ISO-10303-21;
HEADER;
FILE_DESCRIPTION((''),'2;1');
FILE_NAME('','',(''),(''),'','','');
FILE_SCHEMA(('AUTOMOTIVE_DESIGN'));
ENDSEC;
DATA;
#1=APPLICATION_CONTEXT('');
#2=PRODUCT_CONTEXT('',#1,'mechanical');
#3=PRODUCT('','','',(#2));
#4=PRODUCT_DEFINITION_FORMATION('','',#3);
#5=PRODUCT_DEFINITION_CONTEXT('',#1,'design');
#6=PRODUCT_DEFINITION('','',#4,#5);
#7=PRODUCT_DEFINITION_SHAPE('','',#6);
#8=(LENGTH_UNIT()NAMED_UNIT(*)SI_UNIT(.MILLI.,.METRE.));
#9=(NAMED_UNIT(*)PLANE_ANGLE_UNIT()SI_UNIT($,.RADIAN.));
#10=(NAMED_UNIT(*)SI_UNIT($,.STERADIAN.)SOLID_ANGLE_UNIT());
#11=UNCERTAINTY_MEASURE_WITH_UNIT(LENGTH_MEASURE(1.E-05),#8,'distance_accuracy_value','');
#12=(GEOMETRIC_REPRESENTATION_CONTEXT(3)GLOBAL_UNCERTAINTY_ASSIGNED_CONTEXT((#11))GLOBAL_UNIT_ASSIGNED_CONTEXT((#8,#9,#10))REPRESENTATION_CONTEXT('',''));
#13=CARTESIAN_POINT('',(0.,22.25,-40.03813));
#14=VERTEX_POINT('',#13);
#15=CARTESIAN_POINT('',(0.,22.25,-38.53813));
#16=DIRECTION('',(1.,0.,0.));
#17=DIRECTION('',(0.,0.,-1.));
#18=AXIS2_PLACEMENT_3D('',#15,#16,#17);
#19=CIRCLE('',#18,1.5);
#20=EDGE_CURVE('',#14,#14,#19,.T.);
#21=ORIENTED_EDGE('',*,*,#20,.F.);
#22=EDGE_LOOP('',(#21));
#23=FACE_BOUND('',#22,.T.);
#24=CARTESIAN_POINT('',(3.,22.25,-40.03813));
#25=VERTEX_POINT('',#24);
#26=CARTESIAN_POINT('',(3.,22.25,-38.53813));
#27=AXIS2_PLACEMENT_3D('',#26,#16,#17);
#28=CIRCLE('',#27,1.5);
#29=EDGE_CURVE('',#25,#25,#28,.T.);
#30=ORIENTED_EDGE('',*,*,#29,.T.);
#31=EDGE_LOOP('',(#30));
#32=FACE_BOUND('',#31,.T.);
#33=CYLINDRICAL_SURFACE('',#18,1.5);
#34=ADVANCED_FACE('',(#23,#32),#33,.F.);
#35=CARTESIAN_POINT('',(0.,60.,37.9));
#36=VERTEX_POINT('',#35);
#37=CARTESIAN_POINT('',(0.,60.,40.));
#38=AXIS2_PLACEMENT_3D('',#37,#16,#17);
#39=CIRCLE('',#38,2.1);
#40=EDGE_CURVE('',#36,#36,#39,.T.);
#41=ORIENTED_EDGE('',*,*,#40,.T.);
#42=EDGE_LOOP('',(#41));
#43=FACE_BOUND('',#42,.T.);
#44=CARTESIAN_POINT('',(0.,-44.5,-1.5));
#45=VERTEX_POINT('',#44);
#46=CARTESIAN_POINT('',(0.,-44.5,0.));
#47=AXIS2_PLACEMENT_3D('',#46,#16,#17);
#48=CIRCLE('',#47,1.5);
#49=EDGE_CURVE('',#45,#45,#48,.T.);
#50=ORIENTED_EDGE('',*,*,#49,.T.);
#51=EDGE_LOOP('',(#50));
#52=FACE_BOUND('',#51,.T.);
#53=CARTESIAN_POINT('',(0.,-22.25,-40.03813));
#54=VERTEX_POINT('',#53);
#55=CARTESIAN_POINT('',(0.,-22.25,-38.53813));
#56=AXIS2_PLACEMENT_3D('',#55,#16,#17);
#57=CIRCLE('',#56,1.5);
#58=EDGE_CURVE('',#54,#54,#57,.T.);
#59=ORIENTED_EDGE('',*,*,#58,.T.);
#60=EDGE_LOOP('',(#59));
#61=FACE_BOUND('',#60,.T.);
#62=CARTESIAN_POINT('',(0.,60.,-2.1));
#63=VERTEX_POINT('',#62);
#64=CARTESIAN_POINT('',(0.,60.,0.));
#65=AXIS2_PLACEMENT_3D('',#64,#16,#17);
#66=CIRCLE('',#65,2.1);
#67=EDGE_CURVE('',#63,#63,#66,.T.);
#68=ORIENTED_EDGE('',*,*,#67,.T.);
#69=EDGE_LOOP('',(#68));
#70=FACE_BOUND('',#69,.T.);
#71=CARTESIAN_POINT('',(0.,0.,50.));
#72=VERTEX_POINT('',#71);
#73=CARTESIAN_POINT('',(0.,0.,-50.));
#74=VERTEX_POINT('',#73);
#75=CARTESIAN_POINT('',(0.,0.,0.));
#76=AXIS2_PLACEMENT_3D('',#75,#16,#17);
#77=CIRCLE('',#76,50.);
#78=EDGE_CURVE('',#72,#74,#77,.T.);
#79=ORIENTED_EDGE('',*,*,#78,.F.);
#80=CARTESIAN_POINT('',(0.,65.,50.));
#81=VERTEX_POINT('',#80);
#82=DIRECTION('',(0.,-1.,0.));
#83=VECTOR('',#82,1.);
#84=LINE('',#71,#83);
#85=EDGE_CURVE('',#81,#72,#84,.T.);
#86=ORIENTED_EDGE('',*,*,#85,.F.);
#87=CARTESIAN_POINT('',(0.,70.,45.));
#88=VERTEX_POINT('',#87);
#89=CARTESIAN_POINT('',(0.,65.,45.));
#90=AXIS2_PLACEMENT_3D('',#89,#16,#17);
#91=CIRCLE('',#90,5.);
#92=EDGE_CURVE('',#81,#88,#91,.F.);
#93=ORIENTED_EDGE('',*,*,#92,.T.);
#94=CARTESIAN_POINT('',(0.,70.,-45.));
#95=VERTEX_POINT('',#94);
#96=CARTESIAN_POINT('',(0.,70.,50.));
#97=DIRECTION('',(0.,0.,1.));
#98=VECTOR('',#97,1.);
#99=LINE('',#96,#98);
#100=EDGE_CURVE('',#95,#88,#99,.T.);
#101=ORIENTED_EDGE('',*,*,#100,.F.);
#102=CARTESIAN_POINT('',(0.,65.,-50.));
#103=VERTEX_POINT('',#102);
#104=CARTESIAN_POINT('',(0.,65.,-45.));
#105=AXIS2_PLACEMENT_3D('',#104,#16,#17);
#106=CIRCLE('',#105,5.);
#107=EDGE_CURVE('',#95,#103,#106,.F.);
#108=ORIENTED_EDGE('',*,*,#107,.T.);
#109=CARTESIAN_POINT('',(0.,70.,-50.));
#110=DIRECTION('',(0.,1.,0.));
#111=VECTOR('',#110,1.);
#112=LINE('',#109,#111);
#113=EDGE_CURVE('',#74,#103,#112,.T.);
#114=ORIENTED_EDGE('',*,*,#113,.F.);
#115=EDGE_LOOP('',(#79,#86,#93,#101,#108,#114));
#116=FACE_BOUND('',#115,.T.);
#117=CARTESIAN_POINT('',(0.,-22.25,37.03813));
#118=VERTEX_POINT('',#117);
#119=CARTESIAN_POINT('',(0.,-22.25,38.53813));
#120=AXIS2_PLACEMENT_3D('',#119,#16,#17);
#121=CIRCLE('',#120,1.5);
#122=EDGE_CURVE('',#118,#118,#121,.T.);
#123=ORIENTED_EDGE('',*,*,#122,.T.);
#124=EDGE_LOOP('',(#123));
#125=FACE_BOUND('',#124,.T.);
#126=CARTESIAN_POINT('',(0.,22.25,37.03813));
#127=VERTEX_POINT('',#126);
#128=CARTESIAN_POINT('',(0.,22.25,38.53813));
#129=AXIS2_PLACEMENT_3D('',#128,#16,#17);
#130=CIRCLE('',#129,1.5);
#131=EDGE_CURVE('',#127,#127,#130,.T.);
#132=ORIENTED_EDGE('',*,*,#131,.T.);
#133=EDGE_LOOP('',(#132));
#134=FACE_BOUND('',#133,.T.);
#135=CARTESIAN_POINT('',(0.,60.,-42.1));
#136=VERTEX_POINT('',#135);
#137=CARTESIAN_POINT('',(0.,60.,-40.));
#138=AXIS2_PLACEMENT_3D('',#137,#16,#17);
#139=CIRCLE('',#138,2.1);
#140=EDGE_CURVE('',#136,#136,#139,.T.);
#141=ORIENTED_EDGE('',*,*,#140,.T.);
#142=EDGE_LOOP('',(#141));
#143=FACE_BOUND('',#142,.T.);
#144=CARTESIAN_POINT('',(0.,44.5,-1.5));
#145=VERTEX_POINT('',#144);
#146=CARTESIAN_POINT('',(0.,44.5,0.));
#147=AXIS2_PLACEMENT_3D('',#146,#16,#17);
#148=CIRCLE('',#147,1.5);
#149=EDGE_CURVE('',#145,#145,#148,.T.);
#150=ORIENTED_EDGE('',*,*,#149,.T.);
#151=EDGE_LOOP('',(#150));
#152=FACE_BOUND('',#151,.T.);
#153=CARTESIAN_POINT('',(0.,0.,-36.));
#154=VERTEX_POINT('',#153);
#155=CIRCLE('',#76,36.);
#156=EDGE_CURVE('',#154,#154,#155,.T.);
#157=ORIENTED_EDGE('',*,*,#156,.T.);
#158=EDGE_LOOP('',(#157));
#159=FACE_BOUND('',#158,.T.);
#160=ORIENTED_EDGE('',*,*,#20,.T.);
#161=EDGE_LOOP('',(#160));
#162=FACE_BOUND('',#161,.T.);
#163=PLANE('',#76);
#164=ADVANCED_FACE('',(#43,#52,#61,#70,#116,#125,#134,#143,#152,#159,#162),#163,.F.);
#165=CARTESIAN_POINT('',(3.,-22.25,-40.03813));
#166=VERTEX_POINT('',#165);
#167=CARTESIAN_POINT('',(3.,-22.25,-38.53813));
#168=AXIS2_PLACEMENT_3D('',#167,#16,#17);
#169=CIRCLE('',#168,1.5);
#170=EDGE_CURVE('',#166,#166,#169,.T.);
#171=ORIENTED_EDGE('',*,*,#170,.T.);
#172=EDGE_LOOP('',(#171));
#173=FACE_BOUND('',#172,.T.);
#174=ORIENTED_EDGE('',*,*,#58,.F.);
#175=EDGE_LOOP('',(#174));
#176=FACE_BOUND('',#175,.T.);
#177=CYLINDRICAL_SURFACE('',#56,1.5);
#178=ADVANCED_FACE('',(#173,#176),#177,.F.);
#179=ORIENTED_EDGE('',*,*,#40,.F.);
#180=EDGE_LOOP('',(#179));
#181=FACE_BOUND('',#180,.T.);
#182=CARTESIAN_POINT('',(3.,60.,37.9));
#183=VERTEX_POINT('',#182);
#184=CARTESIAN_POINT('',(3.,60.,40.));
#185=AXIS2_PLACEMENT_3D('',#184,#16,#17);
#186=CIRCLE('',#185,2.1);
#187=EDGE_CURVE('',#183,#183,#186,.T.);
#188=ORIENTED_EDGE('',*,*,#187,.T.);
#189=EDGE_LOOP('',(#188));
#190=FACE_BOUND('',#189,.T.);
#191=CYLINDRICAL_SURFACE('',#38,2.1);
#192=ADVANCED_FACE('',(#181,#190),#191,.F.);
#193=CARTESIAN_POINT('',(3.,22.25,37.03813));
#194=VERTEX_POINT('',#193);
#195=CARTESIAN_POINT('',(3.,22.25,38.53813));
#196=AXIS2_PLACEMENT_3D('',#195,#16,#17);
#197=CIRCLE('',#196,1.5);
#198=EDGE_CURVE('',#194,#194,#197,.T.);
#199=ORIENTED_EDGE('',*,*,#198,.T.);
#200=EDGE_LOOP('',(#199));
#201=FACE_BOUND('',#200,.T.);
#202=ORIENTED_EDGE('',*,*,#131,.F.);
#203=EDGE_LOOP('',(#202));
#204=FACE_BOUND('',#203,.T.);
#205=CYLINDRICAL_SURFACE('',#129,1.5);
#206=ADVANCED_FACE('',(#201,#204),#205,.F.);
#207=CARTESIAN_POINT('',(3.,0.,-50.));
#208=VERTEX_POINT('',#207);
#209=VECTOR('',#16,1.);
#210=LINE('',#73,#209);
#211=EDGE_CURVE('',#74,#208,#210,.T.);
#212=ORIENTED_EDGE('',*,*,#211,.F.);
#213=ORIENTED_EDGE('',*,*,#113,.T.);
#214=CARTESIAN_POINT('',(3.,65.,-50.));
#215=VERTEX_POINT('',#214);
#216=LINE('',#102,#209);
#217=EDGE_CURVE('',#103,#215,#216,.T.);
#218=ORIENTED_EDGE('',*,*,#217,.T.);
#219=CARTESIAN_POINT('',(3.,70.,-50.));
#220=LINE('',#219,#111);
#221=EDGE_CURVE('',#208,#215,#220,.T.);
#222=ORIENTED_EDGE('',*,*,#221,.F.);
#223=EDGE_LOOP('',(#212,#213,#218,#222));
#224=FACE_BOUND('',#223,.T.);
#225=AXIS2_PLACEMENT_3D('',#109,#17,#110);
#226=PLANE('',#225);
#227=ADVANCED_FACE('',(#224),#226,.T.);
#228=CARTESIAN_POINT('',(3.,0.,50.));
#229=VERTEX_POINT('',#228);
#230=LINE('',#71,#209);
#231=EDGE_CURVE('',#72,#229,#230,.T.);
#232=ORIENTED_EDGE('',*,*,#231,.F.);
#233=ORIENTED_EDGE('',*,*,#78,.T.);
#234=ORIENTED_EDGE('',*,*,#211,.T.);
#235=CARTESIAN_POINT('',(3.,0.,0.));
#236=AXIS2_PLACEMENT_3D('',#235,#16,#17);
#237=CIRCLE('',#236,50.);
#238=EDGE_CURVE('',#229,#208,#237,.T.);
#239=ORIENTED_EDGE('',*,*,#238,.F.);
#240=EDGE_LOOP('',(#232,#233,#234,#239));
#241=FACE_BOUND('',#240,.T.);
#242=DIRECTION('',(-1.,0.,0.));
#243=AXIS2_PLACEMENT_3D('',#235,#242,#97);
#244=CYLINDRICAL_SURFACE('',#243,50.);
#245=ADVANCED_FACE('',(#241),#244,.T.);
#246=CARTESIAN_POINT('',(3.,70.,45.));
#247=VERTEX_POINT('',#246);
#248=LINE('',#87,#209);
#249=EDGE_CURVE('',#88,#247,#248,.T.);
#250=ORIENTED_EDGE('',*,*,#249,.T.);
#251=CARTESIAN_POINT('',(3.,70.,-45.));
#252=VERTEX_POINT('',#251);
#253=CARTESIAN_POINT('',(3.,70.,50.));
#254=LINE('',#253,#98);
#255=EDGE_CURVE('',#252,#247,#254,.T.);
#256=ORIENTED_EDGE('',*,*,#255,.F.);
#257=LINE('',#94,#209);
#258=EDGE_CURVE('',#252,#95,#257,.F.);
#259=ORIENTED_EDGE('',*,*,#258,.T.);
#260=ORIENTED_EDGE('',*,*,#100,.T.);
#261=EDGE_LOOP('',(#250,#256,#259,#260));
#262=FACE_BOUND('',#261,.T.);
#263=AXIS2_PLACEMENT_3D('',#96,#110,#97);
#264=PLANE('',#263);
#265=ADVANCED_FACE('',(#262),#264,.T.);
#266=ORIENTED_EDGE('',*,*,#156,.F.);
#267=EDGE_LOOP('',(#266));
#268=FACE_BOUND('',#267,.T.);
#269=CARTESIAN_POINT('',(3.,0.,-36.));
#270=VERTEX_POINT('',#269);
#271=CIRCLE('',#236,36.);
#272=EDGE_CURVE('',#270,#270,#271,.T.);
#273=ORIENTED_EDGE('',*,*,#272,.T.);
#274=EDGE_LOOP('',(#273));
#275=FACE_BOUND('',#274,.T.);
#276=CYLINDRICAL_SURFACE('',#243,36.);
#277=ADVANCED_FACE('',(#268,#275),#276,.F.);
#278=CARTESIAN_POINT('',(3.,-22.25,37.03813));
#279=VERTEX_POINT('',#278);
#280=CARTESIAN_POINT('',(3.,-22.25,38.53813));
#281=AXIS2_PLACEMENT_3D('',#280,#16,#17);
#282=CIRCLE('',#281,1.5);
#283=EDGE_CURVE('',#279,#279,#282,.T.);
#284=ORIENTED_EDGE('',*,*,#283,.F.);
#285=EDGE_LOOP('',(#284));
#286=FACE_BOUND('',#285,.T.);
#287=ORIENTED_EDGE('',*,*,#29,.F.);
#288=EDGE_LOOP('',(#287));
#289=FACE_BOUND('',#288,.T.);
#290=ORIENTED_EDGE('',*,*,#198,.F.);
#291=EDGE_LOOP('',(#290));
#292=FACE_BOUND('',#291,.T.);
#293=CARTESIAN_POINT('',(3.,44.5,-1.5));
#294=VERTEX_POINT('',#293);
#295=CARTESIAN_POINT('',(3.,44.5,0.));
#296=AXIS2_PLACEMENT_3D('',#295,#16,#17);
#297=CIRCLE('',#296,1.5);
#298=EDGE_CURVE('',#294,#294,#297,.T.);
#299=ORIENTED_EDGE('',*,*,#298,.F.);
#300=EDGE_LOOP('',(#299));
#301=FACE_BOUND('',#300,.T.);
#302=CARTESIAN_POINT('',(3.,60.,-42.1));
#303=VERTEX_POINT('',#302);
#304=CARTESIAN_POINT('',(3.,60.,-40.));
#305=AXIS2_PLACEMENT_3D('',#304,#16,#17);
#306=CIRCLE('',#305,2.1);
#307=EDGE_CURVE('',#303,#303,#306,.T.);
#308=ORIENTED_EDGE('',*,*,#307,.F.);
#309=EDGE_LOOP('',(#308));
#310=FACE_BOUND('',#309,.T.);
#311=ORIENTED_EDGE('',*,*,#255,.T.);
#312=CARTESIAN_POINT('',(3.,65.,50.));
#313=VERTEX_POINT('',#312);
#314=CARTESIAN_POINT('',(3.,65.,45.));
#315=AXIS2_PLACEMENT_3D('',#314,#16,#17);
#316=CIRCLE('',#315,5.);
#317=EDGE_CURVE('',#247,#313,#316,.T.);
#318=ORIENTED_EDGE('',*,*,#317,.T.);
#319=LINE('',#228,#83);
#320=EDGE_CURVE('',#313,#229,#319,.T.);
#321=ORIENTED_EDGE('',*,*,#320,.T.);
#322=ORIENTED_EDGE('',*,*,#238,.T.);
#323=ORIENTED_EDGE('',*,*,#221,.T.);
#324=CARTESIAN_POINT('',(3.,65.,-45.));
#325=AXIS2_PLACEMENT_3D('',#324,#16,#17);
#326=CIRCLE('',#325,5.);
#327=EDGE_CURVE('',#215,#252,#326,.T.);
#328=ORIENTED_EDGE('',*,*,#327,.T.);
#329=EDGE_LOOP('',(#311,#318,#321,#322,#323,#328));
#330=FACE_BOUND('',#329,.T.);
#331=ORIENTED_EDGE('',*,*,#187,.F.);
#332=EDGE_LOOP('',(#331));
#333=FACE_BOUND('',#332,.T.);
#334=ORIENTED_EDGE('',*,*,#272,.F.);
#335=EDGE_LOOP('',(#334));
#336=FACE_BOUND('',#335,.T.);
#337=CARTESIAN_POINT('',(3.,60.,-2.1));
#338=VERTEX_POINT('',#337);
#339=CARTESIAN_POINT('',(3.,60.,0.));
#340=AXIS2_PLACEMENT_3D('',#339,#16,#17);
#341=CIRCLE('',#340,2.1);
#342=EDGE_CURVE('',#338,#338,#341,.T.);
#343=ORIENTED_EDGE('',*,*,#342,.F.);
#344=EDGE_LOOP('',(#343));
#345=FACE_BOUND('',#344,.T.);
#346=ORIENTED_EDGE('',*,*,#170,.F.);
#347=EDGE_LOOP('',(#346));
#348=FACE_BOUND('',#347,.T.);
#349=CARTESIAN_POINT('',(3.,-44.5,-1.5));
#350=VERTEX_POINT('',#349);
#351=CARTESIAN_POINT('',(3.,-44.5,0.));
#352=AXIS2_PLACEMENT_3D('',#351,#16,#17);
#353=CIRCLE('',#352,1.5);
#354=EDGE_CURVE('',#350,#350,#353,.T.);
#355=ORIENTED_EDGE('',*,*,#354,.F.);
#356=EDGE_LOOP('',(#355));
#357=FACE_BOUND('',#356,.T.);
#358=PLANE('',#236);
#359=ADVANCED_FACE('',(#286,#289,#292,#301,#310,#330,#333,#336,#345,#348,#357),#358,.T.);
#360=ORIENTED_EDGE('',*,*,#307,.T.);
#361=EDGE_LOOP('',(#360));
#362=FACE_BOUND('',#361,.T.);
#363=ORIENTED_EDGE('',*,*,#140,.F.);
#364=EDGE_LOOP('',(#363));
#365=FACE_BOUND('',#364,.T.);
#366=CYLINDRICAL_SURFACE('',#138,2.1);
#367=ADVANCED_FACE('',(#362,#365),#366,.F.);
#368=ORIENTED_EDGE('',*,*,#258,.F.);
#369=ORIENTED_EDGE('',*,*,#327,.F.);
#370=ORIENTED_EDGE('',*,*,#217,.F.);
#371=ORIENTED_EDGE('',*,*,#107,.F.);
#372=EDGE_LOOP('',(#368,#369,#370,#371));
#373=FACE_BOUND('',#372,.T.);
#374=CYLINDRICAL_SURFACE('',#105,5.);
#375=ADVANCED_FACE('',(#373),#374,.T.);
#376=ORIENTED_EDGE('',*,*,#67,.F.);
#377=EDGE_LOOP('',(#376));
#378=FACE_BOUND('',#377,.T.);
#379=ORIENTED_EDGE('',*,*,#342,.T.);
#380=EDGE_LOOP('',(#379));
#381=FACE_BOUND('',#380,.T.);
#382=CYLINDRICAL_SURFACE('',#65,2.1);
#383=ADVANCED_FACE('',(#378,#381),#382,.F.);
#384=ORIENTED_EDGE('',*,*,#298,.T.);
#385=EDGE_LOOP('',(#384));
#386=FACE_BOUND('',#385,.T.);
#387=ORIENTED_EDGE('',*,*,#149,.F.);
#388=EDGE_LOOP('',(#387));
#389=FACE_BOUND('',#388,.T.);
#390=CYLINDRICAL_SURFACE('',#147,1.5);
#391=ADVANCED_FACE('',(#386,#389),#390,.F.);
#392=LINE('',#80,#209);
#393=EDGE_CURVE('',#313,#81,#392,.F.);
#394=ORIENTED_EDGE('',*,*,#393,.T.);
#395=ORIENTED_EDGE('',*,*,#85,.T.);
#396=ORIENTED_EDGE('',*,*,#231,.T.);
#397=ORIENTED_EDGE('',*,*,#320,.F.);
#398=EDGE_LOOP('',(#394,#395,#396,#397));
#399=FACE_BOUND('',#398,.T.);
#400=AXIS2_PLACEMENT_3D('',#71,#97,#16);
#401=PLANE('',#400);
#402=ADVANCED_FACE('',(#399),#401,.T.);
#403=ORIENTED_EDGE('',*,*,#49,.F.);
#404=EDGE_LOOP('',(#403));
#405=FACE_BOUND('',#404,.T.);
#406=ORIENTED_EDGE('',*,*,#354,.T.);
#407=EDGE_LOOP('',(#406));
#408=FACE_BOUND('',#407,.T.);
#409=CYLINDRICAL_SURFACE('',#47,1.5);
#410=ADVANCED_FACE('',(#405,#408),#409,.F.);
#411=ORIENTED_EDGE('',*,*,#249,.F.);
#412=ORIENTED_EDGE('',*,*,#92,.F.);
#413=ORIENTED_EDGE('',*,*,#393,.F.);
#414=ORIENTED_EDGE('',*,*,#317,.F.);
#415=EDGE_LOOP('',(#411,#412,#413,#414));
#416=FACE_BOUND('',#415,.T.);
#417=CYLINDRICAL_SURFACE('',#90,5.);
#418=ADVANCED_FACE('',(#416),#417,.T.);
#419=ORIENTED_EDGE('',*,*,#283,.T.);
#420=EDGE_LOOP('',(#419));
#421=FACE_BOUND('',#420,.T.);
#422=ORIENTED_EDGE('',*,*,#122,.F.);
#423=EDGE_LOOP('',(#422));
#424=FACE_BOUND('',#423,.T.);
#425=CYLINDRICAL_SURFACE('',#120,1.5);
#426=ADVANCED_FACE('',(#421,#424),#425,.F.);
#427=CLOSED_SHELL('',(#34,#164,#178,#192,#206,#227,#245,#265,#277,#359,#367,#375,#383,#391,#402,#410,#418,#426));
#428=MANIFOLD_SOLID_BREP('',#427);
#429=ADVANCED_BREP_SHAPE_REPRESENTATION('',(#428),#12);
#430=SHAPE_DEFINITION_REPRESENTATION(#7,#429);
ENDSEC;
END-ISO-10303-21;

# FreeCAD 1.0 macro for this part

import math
import FreeCAD as App
import Part
import Sketcher

V = App.Vector
Q = App.Units.Quantity


def edges_at(feature, points):
    """Names of the edges that pass closest to the given points."""
    edges = feature.Shape.Edges
    near = lambda p: min(range(len(edges)), key=lambda i: edges[i].distToShape(Part.Vertex(*p))[0])
    return sorted({f"Edge{near(p) + 1}" for p in points})

doc = App.newDocument("Part")
body = doc.addObject("PartDesign::Body", "Body")

sketch1 = body.newObject("Sketcher::SketchObject", "Sketch")
sketch1.AttachmentSupport = (doc.getObject("YZ_Plane"), [""])
sketch1.MapMode = "FlatFace"
sketch1.addGeometry(Part.Circle(V(0, 0, 0), V(0, 0, 1), 50), False)
sketch1.addGeometry(Part.Circle(V(0, 0, 0), V(0, 0, 1), 36), False)
sketch1.addConstraint(Sketcher.Constraint("Coincident", 0, 3, -1, 1))
sketch1.addConstraint(Sketcher.Constraint("Coincident", 1, 3, -1, 1))
sketch1.addConstraint(Sketcher.Constraint("Diameter", 0, Q("100 mm")))
sketch1.addConstraint(Sketcher.Constraint("Diameter", 1, Q("72 mm")))
pad1 = body.newObject("PartDesign::Pad", "Pad")
pad1.Profile = sketch1
pad1.Length = 3

sketch2 = body.newObject("Sketcher::SketchObject", "Sketch001")
sketch2.AttachmentSupport = (doc.getObject("YZ_Plane"), [""])
sketch2.MapMode = "FlatFace"
sketch2.addGeometry(Part.LineSegment(V(70, 50, 0), V(0, 50, 0)), False)
sketch2.addGeometry(Part.ArcOfCircle(Part.Circle(V(0, 0, 0), V(0, 0, 1), 50), math.radians(-90), math.radians(90)), False)
sketch2.addGeometry(Part.LineSegment(V(0, -50, 0), V(70, -50, 0)), False)
sketch2.addGeometry(Part.LineSegment(V(70, -50, 0), V(70, 50, 0)), False)
sketch2.addConstraint(Sketcher.Constraint("Tangent", 0, 2, 1, 2))
sketch2.addConstraint(Sketcher.Constraint("Tangent", 1, 1, 2, 1))
sketch2.addConstraint(Sketcher.Constraint("Coincident", 2, 2, 3, 1))
sketch2.addConstraint(Sketcher.Constraint("Coincident", 3, 2, 0, 1))
sketch2.addConstraint(Sketcher.Constraint("Horizontal", 0))
sketch2.addConstraint(Sketcher.Constraint("Horizontal", 2))
sketch2.addConstraint(Sketcher.Constraint("Vertical", 3))
sketch2.addConstraint(Sketcher.Constraint("Coincident", 1, 3, -1, 1))
sketch2.addConstraint(Sketcher.Constraint("Radius", 1, Q("50 mm")))
sketch2.addConstraint(Sketcher.Constraint("DistanceX", 0, 2, 0, 1, Q("70 mm")))
pad2 = body.newObject("PartDesign::Pad", "Pad001")
pad2.Profile = sketch2
pad2.Length = 3

sketch3 = body.newObject("Sketcher::SketchObject", "Sketch002")
sketch3.AttachmentSupport = (doc.getObject("YZ_Plane"), [""])
sketch3.MapMode = "FlatFace"
sketch3.AttachmentOffset = App.Placement(V(0, 0, 3), App.Rotation())
sketch3.addGeometry(Part.Circle(V(44.5, 0, 0), V(0, 0, 1), 1.5), False)
sketch3.addGeometry(Part.Circle(V(22.2, -38.5, 0), V(0, 0, 1), 1.5), False)
sketch3.addGeometry(Part.Circle(V(-22.2, -38.5, 0), V(0, 0, 1), 1.5), False)
sketch3.addGeometry(Part.Circle(V(-44.5, 0, 0), V(0, 0, 1), 1.5), False)
sketch3.addGeometry(Part.Circle(V(-22.2, 38.5, 0), V(0, 0, 1), 1.5), False)
sketch3.addGeometry(Part.Circle(V(22.2, 38.5, 0), V(0, 0, 1), 1.5), False)
sketch3.addConstraint(Sketcher.Constraint("Equal", 0, 1))
sketch3.addConstraint(Sketcher.Constraint("Equal", 1, 2))
sketch3.addConstraint(Sketcher.Constraint("Equal", 2, 3))
sketch3.addConstraint(Sketcher.Constraint("Equal", 3, 4))
sketch3.addConstraint(Sketcher.Constraint("Equal", 4, 5))
sketch3.addConstraint(Sketcher.Constraint("Symmetric", 0, 3, 3, 3, -1, 1))
sketch3.addConstraint(Sketcher.Constraint("Symmetric", 1, 3, 4, 3, -1, 1))
sketch3.addConstraint(Sketcher.Constraint("Symmetric", 2, 3, 5, 3, -1, 1))
sketch3.addConstraint(Sketcher.Constraint("Symmetric", 1, 3, 2, 3, -2))
sketch3.addConstraint(Sketcher.Constraint("PointOnObject", 0, 3, -1))
sketch3.addConstraint(Sketcher.Constraint("Diameter", 0, Q("3 mm")))
sketch3.addConstraint(Sketcher.Constraint("DistanceX", 3, 3, 0, 3, Q("89 mm")))
sketch3.addConstraint(Sketcher.Constraint("DistanceX", 2, 3, 1, 3, Q("44.5 mm")))
sketch3.addConstraint(Sketcher.Constraint("DistanceY", 1, 3, -1, 1, Q("38.53813 mm")))
pocket1 = body.newObject("PartDesign::Pocket", "Pocket")
pocket1.Profile = sketch3
pocket1.Length = 3

sketch4 = body.newObject("Sketcher::SketchObject", "Sketch003")
sketch4.AttachmentSupport = (doc.getObject("YZ_Plane"), [""])
sketch4.MapMode = "FlatFace"
sketch4.AttachmentOffset = App.Placement(V(0, 0, 3), App.Rotation())
sketch4.addGeometry(Part.Circle(V(60, 40, 0), V(0, 0, 1), 2.1), False)
sketch4.addGeometry(Part.Circle(V(60, 0, 0), V(0, 0, 1), 2.1), False)
sketch4.addGeometry(Part.Circle(V(60, -40, 0), V(0, 0, 1), 2.1), False)
sketch4.addConstraint(Sketcher.Constraint("Equal", 0, 1))
sketch4.addConstraint(Sketcher.Constraint("Equal", 1, 2))
sketch4.addConstraint(Sketcher.Constraint("Symmetric", 0, 3, 2, 3, -1))
sketch4.addConstraint(Sketcher.Constraint("PointOnObject", 1, 3, -1))
sketch4.addConstraint(Sketcher.Constraint("Vertical", 0, 3, 1, 3))
sketch4.addConstraint(Sketcher.Constraint("Diameter", 0, Q("4.2 mm")))
sketch4.addConstraint(Sketcher.Constraint("DistanceX", -1, 1, 0, 3, Q("60 mm")))
sketch4.addConstraint(Sketcher.Constraint("DistanceY", -1, 1, 0, 3, Q("40 mm")))
pocket2 = body.newObject("PartDesign::Pocket", "Pocket001")
pocket2.Profile = sketch4
pocket2.Type = "ThroughAll"
doc.recompute()

fillet = body.newObject("PartDesign::Fillet", "Fillet")
fillet.Base = (pocket2, edges_at(pocket2, [(1.5, 70, 50), (1.5, 70, -50)]))
fillet.Radius = 5

doc.recompute()
